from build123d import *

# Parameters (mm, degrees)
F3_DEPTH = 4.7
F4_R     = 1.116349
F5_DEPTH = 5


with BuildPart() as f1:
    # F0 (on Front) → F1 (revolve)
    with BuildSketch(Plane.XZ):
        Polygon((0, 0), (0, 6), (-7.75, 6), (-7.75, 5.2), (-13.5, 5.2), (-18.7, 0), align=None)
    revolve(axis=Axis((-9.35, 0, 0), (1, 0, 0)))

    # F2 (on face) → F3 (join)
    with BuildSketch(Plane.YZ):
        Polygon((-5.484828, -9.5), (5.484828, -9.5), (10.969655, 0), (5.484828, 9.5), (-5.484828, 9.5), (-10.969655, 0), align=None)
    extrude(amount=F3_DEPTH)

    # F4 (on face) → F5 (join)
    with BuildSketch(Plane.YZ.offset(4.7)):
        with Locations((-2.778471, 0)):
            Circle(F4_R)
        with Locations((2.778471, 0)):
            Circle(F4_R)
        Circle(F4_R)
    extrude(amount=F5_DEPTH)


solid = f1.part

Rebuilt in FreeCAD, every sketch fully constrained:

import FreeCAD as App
import Part
import Sketcher
Q = App.Units.Quantity


def add_polygon(sketch, points):
    """Adds a closed chain of lines whose ends are joined by coincident constraints."""
    first, n = sketch.GeometryCount, len(points)
    for a, b in zip(points, points[1:] + points[:1]):
        sketch.addGeometry(Part.LineSegment(App.Vector(*a, 0), App.Vector(*b, 0)), False)
    for i in range(n):
        sketch.addConstraint(Sketcher.Constraint("Coincident", first + i, 2, first + (i + 1) % n, 1))

doc = App.newDocument("Part")
body = doc.addObject("PartDesign::Body", "Body")

# Sketch on XZ plane
sketch1 = body.newObject("Sketcher::SketchObject", "Sketch")
sketch1.AttachmentSupport = (doc.getObject("XZ_Plane"), [""])
sketch1.MapMode = "FlatFace"
add_polygon(sketch1, [(0, 0), (0, 6), (-7.8, 6), (-7.8, 5.2), (-13.5, 5.2), (-18.7, 0)])  # lines 0-5
sketch1.addConstraint([
    Sketcher.Constraint("Vertical", 0),
    Sketcher.Constraint("Horizontal", 1),
    Sketcher.Constraint("Vertical", 2),
    Sketcher.Constraint("Horizontal", 3),
    Sketcher.Constraint("Horizontal", 5),
    Sketcher.Constraint("Coincident", 5, 2, -1, 1),
    Sketcher.Constraint("DistanceY", 0, 1, 0, 2, 6.0),
    Sketcher.Constraint("Angle", 4, Q("-135 deg")),
    Sketcher.Constraint("DistanceX", 5, 1, 5, 2, 18.7),
    Sketcher.Constraint("DistanceY", 2, 2, 2, 1, 0.8),
    Sketcher.Constraint("DistanceX", 1, 2, 1, 1, 7.75),
])
revolution = body.newObject("PartDesign::Revolution", "Revolution")
revolution.Profile = sketch1
revolution.ReferenceAxis = (sketch1, ["H_Axis"])
revolution.Angle = 360

# Sketch on YZ plane
sketch2 = body.newObject("Sketcher::SketchObject", "Sketch001")
sketch2.AttachmentSupport = (doc.getObject("YZ_Plane"), [""])
sketch2.MapMode = "FlatFace"
add_polygon(sketch2, [(-5, -10), (5, -10), (11, 0), (5, 10), (-5, 10), (-11, 0)])  # lines 0-5
sketch2.addConstraint([
    Sketcher.Constraint("Horizontal", 0),
    Sketcher.Constraint("Horizontal", 3),
    Sketcher.Constraint("Symmetric", 0, 2, 3, 2, -1, 1),
    Sketcher.Constraint("Symmetric", 1, 2, 4, 2, -1, 1),
    Sketcher.Constraint("PointOnObject", 1, 2, -1),
    Sketcher.Constraint("Parallel", 2, 5),
    Sketcher.Constraint("Vertical", 0, 2, 2, 2),
    Sketcher.Constraint("Angle", 1, Q("60.000003 deg")),
    Sketcher.Constraint("DistanceY", 0, 2, 2, 2, 19.0),
    Sketcher.Constraint("DistanceX", 0, 1, 0, 2, 10.969656),
])
pad1 = body.newObject("PartDesign::Pad", "Pad")
pad1.Profile = sketch2
pad1.Length = 4.7

# Sketch on YZ plane
sketch3 = body.newObject("Sketcher::SketchObject", "Sketch002")
sketch3.AttachmentSupport = (doc.getObject("YZ_Plane"), [""])
sketch3.MapMode = "FlatFace"
sketch3.AttachmentOffset = App.Placement(App.Vector(0, 0, 4.7), App.Rotation())
sketch3.addGeometry([
    Part.Circle(App.Vector(-2.8, 0, 0), App.Vector(0, 0, 1), 1.1),
    Part.Circle(App.Vector(2.8, 0, 0), App.Vector(0, 0, 1), 1.1),
    Part.Circle(App.Vector(0, 0, 0), App.Vector(0, 0, 1), 1.1),
], False)
sketch3.addConstraint([
    Sketcher.Constraint("Coincident", 2, 3, -1, 1),
    Sketcher.Constraint("Equal", 0, 1),
    Sketcher.Constraint("Equal", 1, 2),
    Sketcher.Constraint("Symmetric", 0, 3, 1, 3, -1, 1),
    Sketcher.Constraint("PointOnObject", 0, 3, -1),
    Sketcher.Constraint("Diameter", 0, 2.232698),
    Sketcher.Constraint("DistanceX", 0, 3, -1, 1, 2.778471),
])
pad2 = body.newObject("PartDesign::Pad", "Pad001")
pad2.Profile = sketch3
pad2.Length = 5

doc.recompute()
